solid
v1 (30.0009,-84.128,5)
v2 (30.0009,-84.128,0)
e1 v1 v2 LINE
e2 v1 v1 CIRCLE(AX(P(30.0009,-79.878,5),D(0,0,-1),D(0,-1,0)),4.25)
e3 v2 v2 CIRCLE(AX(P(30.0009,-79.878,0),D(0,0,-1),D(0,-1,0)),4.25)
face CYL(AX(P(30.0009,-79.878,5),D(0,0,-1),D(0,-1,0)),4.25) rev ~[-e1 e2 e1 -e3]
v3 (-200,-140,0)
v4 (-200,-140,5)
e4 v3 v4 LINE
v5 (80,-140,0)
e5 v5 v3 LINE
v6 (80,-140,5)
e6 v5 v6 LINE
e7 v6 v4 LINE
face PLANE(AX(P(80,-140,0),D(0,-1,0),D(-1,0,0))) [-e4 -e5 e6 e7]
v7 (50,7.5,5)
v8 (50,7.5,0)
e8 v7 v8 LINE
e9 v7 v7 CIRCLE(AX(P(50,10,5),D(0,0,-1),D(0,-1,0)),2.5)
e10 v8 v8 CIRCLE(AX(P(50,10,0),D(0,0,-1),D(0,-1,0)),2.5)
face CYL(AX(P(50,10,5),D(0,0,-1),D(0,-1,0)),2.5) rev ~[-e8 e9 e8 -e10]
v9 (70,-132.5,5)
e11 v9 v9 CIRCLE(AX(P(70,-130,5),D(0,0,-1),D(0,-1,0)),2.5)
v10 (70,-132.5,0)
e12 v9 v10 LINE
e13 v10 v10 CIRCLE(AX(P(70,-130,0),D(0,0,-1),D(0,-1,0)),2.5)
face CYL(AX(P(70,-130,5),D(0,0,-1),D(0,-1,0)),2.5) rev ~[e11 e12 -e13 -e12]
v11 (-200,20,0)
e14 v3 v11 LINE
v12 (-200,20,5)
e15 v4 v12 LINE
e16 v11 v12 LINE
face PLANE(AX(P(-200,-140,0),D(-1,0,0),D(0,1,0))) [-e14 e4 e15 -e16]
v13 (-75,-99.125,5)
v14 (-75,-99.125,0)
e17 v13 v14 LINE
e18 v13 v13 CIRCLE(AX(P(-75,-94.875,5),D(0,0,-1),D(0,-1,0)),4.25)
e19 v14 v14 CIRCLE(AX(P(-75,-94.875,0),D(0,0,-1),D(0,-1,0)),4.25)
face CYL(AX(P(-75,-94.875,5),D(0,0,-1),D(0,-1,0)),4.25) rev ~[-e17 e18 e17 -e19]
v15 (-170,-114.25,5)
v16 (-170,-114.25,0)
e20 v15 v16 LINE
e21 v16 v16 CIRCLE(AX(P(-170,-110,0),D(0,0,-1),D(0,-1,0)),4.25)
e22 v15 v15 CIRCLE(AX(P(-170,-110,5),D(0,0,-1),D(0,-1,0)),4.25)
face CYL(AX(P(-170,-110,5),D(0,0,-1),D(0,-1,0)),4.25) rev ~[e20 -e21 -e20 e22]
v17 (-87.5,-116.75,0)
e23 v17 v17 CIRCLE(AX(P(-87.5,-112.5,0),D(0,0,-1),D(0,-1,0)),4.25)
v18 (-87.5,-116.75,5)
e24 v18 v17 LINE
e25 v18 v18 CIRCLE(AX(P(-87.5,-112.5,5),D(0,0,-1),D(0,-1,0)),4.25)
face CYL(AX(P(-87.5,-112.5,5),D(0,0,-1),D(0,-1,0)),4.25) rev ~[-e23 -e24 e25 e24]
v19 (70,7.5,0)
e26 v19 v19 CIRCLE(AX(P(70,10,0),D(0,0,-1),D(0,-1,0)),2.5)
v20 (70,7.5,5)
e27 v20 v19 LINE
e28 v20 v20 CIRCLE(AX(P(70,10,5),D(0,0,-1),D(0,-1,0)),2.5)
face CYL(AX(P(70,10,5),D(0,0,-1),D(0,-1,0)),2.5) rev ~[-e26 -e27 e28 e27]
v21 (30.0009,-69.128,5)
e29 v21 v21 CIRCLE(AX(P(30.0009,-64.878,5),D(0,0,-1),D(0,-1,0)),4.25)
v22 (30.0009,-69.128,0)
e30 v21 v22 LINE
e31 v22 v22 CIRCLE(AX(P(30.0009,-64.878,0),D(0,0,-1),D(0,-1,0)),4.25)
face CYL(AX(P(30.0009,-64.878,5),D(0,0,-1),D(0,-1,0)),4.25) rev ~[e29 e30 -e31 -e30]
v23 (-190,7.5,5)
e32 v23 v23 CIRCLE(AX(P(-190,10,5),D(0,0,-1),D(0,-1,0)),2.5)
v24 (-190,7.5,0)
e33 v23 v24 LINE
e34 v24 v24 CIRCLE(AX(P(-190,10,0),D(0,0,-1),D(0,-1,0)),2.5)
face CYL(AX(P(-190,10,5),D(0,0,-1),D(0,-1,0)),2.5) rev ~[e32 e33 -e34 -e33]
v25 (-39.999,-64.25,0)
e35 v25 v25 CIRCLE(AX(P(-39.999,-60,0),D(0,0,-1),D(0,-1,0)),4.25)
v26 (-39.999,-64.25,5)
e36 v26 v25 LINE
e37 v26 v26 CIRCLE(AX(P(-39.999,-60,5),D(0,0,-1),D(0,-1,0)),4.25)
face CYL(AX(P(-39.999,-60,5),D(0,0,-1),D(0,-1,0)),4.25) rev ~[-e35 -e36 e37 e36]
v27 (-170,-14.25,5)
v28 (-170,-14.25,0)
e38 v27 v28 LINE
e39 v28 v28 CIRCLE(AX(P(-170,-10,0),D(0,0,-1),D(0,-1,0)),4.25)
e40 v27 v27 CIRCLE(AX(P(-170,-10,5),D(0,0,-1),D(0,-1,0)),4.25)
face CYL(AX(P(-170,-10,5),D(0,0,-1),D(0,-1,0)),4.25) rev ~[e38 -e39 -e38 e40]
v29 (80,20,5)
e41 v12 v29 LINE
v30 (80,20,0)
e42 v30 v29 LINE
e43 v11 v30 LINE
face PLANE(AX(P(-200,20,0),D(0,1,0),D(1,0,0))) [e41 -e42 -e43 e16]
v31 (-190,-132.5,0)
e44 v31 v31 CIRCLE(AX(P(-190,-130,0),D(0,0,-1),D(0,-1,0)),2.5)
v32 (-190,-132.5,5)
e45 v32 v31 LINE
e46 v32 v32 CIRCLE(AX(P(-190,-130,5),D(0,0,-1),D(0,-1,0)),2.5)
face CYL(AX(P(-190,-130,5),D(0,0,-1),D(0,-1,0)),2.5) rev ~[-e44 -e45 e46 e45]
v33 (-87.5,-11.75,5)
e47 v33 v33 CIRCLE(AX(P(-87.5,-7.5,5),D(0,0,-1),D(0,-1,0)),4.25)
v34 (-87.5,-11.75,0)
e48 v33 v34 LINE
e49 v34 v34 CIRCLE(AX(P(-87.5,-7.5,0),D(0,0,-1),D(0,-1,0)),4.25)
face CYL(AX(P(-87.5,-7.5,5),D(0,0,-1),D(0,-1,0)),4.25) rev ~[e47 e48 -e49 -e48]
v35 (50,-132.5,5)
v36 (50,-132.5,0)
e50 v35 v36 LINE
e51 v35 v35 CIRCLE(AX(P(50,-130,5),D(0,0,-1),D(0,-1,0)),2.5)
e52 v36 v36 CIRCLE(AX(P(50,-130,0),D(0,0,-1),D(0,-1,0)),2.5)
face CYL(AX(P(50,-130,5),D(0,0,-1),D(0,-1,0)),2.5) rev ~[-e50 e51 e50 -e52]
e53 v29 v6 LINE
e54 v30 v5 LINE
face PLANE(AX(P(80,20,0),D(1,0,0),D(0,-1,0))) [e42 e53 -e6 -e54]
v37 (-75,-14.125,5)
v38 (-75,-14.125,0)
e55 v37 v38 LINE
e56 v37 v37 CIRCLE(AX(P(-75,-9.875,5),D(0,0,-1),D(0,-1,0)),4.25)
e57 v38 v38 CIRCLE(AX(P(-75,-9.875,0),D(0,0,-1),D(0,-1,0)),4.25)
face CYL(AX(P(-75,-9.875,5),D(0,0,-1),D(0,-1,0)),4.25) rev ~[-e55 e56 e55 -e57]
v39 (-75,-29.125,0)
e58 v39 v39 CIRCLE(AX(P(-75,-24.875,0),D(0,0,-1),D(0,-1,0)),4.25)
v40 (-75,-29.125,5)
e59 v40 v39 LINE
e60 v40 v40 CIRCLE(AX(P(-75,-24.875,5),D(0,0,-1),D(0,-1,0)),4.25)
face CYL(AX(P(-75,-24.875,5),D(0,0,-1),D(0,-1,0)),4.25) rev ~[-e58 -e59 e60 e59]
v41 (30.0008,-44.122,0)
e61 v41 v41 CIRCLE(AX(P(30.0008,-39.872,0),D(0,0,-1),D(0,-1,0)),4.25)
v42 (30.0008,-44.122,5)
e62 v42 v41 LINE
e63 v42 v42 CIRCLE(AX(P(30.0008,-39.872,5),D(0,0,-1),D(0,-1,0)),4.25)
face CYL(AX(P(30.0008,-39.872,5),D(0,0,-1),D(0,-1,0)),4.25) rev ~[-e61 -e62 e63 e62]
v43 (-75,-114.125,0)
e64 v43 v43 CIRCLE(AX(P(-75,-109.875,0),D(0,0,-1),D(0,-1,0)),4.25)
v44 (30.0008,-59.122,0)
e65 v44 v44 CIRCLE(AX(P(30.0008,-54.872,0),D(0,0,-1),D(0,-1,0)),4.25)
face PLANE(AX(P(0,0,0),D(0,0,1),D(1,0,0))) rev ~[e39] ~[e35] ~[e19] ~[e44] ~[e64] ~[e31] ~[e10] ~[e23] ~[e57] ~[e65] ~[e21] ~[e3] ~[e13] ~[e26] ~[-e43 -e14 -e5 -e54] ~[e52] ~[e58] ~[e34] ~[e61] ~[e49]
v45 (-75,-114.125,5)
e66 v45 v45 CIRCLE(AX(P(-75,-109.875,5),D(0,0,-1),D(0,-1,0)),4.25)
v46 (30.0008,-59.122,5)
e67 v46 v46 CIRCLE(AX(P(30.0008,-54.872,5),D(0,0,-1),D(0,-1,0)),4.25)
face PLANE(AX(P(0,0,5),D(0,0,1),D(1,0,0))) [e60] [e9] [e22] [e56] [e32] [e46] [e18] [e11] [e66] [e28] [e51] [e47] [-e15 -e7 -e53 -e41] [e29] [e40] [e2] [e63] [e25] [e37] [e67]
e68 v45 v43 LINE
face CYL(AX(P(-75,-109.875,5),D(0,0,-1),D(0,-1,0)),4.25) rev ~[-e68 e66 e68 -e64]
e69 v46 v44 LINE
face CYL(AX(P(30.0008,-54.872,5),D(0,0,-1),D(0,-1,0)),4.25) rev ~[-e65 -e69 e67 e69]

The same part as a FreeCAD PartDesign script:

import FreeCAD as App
import Part
import Sketcher
from FreeCAD import Vector

doc = App.newDocument("Part")
body = doc.addObject("PartDesign::Body", "Body")

sketch1 = doc.addObject("Sketcher::SketchObject", "Sketch")
body.addObject(sketch1)
sketch1.AttachmentSupport = (doc.XY_Plane, [""])
sketch1.MapMode = "FlatFace"
sketch1.addGeometry(Part.LineSegment(Vector(80, 20, 0), Vector(-200, 20, 0)), False)
sketch1.addGeometry(Part.LineSegment(Vector(-200, 20, 0), Vector(-200, -140, 0)), False)
sketch1.addGeometry(Part.LineSegment(Vector(-200, -140, 0), Vector(80, -140, 0)), False)
sketch1.addGeometry(Part.LineSegment(Vector(80, -140, 0), Vector(80, 20, 0)), False)
sketch1.addConstraint(Sketcher.Constraint("Coincident", 0, 2, 1, 1))
sketch1.addConstraint(Sketcher.Constraint("Coincident", 1, 2, 2, 1))
sketch1.addConstraint(Sketcher.Constraint("Coincident", 2, 2, 3, 1))
sketch1.addConstraint(Sketcher.Constraint("Coincident", 3, 2, 0, 1))
sketch1.addConstraint(Sketcher.Constraint("Horizontal", 0))
sketch1.addConstraint(Sketcher.Constraint("Vertical", 1))
sketch1.addConstraint(Sketcher.Constraint("Horizontal", 2))
sketch1.addConstraint(Sketcher.Constraint("Vertical", 3))
sketch1.addConstraint(Sketcher.Constraint("DistanceX", 0, 2, 0, 1, 280.0))
sketch1.addConstraint(Sketcher.Constraint("DistanceY", 1, 2, 1, 1, 160.0))
sketch1.addConstraint(Sketcher.Constraint("DistanceY", 1, 2, -1, 1, 140.0))
sketch1.addConstraint(Sketcher.Constraint("DistanceX", -1, 1, 2, 2, 80.0))
pad1 = doc.addObject("PartDesign::Pad", "Pad")
body.addObject(pad1)
pad1.Profile = sketch1
pad1.Length = 5

sketch2 = doc.addObject("Sketcher::SketchObject", "Sketch001")
body.addObject(sketch2)
sketch2.AttachmentSupport = (doc.XY_Plane, [""])
sketch2.MapMode = "FlatFace"
sketch2.AttachmentOffset = App.Placement(Vector(0, 0, 5), App.Rotation())
sketch2.addGeometry(Part.Circle(Vector(-87.5, -7.5, 0), Vector(0, 0, 1), 4.2), False)
sketch2.addGeometry(Part.Circle(Vector(-170, -10, 0), Vector(0, 0, 1), 4.2), False)
sketch2.addGeometry(Part.Circle(Vector(-170, -110, 0), Vector(0, 0, 1), 4.2), False)
sketch2.addGeometry(Part.Circle(Vector(-87.5, -112.5, 0), Vector(0, 0, 1), 4.2), False)
sketch2.addGeometry(Part.Circle(Vector(-75, -109.9, 0), Vector(0, 0, 1), 4.2), False)
sketch2.addGeometry(Part.Circle(Vector(-75, -94.9, 0), Vector(0, 0, 1), 4.2), False)
sketch2.addGeometry(Part.Circle(Vector(-75, -24.9, 0), Vector(0, 0, 1), 4.2), False)
sketch2.addGeometry(Part.Circle(Vector(-75, -9.9, 0), Vector(0, 0, 1), 4.2), False)
sketch2.addGeometry(Part.Circle(Vector(-40, -60, 0), Vector(0, 0, 1), 4.2), False)
sketch2.addGeometry(Part.Circle(Vector(30, -79.9, 0), Vector(0, 0, 1), 4.2), False)
sketch2.addGeometry(Part.Circle(Vector(30, -64.9, 0), Vector(0, 0, 1), 4.2), False)
sketch2.addGeometry(Part.Circle(Vector(30, -54.9, 0), Vector(0, 0, 1), 4.2), False)
sketch2.addGeometry(Part.Circle(Vector(30, -39.9, 0), Vector(0, 0, 1), 4.2), False)
sketch2.addConstraint(Sketcher.Constraint("Equal", 0, 1))
sketch2.addConstraint(Sketcher.Constraint("Equal", 1, 2))
sketch2.addConstraint(Sketcher.Constraint("Equal", 2, 3))
sketch2.addConstraint(Sketcher.Constraint("Equal", 3, 4))
sketch2.addConstraint(Sketcher.Constraint("Equal", 4, 5))
sketch2.addConstraint(Sketcher.Constraint("Equal", 5, 6))
sketch2.addConstraint(Sketcher.Constraint("Equal", 6, 7))
sketch2.addConstraint(Sketcher.Constraint("Equal", 7, 8))
sketch2.addConstraint(Sketcher.Constraint("Equal", 8, 9))
sketch2.addConstraint(Sketcher.Constraint("Equal", 9, 10))
sketch2.addConstraint(Sketcher.Constraint("Equal", 10, 11))
sketch2.addConstraint(Sketcher.Constraint("Equal", 11, 12))
sketch2.addConstraint(Sketcher.Constraint("Vertical", 1, 3, 2, 3))
sketch2.addConstraint(Sketcher.Constraint("Vertical", 0, 3, 3, 3))
sketch2.addConstraint(Sketcher.Constraint("Vertical", 4, 3, 5, 3))
sketch2.addConstraint(Sketcher.Constraint("Vertical", 5, 3, 6, 3))
sketch2.addConstraint(Sketcher.Constraint("Vertical", 6, 3, 7, 3))
sketch2.addConstraint(Sketcher.Constraint("Vertical", 9, 3, 10, 3))
sketch2.addConstraint(Sketcher.Constraint("Vertical", 10, 3, 11, 3))
sketch2.addConstraint(Sketcher.Constraint("Vertical", 11, 3, 12, 3))
sketch2.addConstraint(Sketcher.Constraint("Diameter", 0, 8.5))
sketch2.addConstraint(Sketcher.Constraint("DistanceX", 1, 3, -1, 1, 170.0))
sketch2.addConstraint(Sketcher.Constraint("DistanceY", 1, 3, -1, 1, 10.0))
sketch2.addConstraint(Sketcher.Constraint("DistanceY", 2, 3, -1, 1, 110.0))
sketch2.addConstraint(Sketcher.Constraint("DistanceX", 4, 3, -1, 1, 75.0))
sketch2.addConstraint(Sketcher.Constraint("DistanceY", 8, 3, -1, 1, 60.0))
sketch2.addConstraint(Sketcher.Constraint("DistanceY", 3, 3, 0, 3, 105.0))
sketch2.addConstraint(Sketcher.Constraint("DistanceY", 4, 3, 5, 3, 15.0))
sketch2.addConstraint(Sketcher.Constraint("DistanceY", 5, 3, 6, 3, 70.0))
sketch2.addConstraint(Sketcher.Constraint("DistanceY", 6, 3, 7, 3, 15.0))
sketch2.addConstraint(Sketcher.Constraint("DistanceX", 8, 3, 9, 3, 70.0))
sketch2.addConstraint(Sketcher.Constraint("DistanceY", 9, 3, 10, 3, 15.0))
sketch2.addConstraint(Sketcher.Constraint("DistanceY", 11, 3, 12, 3, 15.0))
sketch2.addConstraint(Sketcher.Constraint("DistanceX", 0, 3, -1, 1, 87.5))
sketch2.addConstraint(Sketcher.Constraint("DistanceY", 0, 3, -1, 1, 7.5))
sketch2.addConstraint(Sketcher.Constraint("DistanceY", 4, 3, -1, 1, 109.875))
sketch2.addConstraint(Sketcher.Constraint("DistanceX", 8, 3, -1, 1, 39.999))
sketch2.addConstraint(Sketcher.Constraint("DistanceY", 9, 3, -1, 1, 79.878))
sketch2.addConstraint(Sketcher.Constraint("DistanceY", 11, 3, -1, 1, 54.872))
doc.recompute()
hole = doc.addObject("PartDesign::Hole", "Hole")
body.addObject(hole)
hole.Profile = sketch2
hole.ThreadType = "None"
hole.Diameter = 8.5
hole.DepthType = "ThroughAll"

sketch3 = doc.addObject("Sketcher::SketchObject", "Sketch002")
body.addObject(sketch3)
sketch3.AttachmentSupport = (doc.XY_Plane, [""])
sketch3.MapMode = "FlatFace"
sketch3.AttachmentOffset = App.Placement(Vector(0, 0, 5), App.Rotation())
sketch3.addGeometry(Part.Circle(Vector(-190, 10, 0), Vector(0, 0, 1), 2.5), False)
sketch3.addGeometry(Part.Circle(Vector(-190, -130, 0), Vector(0, 0, 1), 2.5), False)
sketch3.addGeometry(Part.Circle(Vector(70, -130, 0), Vector(0, 0, 1), 2.5), False)
sketch3.addGeometry(Part.Circle(Vector(70, 10, 0), Vector(0, 0, 1), 2.5), False)
sketch3.addGeometry(Part.Circle(Vector(50, 10, 0), Vector(0, 0, 1), 2.5), False)
sketch3.addGeometry(Part.Circle(Vector(50, -130, 0), Vector(0, 0, 1), 2.5), False)
sketch3.addConstraint(Sketcher.Constraint("Equal", 0, 1))
sketch3.addConstraint(Sketcher.Constraint("Equal", 1, 2))
sketch3.addConstraint(Sketcher.Constraint("Equal", 2, 3))
sketch3.addConstraint(Sketcher.Constraint("Equal", 3, 4))
sketch3.addConstraint(Sketcher.Constraint("Equal", 4, 5))
sketch3.addConstraint(Sketcher.Constraint("Horizontal", 1, 3, 2, 3))
sketch3.addConstraint(Sketcher.Constraint("Horizontal", 0, 3, 3, 3))
sketch3.addConstraint(Sketcher.Constraint("Horizontal", 3, 3, 4, 3))
sketch3.addConstraint(Sketcher.Constraint("Horizontal", 2, 3, 5, 3))
sketch3.addConstraint(Sketcher.Constraint("Vertical", 0, 3, 1, 3))
sketch3.addConstraint(Sketcher.Constraint("Vertical", 2, 3, 3, 3))
sketch3.addConstraint(Sketcher.Constraint("Vertical", 4, 3, 5, 3))
sketch3.addConstraint(Sketcher.Constraint("Diameter", 0, 5.0))
sketch3.addConstraint(Sketcher.Constraint("DistanceX", 0, 3, -1, 1, 190.0))
sketch3.addConstraint(Sketcher.Constraint("DistanceY", -1, 1, 0, 3, 10.0))
sketch3.addConstraint(Sketcher.Constraint("DistanceY", 1, 3, -1, 1, 130.0))
sketch3.addConstraint(Sketcher.Constraint("DistanceX", -1, 1, 2, 3, 70.0))
sketch3.addConstraint(Sketcher.Constraint("DistanceX", -1, 1, 4, 3, 50.0))
doc.recompute()
hole2 = doc.addObject("PartDesign::Hole", "Hole001")
body.addObject(hole2)
hole2.Profile = sketch3
hole2.ThreadType = "None"
hole2.Diameter = 5
hole2.DepthType = "ThroughAll"

doc.recompute()
